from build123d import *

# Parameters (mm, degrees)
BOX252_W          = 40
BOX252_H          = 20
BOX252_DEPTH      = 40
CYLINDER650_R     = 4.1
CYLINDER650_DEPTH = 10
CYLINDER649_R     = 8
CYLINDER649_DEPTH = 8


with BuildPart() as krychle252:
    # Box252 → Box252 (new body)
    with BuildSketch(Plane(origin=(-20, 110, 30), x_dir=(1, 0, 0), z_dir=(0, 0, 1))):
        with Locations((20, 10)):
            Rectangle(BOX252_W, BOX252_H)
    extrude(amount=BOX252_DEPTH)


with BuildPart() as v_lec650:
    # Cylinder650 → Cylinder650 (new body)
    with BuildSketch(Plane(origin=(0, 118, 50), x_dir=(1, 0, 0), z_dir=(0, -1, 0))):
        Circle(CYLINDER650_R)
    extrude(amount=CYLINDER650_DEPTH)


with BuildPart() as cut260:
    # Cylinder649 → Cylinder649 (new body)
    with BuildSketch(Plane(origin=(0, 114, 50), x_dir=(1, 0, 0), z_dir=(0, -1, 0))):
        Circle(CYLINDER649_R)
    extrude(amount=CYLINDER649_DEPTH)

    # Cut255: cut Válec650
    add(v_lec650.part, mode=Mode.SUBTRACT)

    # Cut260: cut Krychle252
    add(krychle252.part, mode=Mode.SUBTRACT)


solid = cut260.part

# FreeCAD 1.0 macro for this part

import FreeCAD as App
import Part
import Sketcher


def add_polygon(sketch, points):
    """Adds a closed chain of lines whose ends are joined by coincident constraints."""
    first, n = sketch.GeometryCount, len(points)
    for a, b in zip(points, points[1:] + points[:1]):
        sketch.addGeometry(Part.LineSegment(App.Vector(*a, 0), App.Vector(*b, 0)), False)
    for i in range(n):
        sketch.addConstraint(Sketcher.Constraint("Coincident", first + i, 2, first + (i + 1) % n, 1))

doc = App.newDocument("Part")
body = doc.addObject("PartDesign::Body", "Body")

sketch1 = doc.addObject("Sketcher::SketchObject", "Sketch")
body.addObject(sketch1)
sketch1.AttachmentSupport = (doc.XY_Plane, [""])
sketch1.MapMode = "FlatFace"
sketch1.AttachmentOffset = App.Placement(App.Vector(0, 0, 30), App.Rotation())
add_polygon(sketch1, [(-20, 130), (-20, 110), (20, 110), (20, 130)])
sketch1.addConstraint([
    Sketcher.Constraint("Vertical", 0),
    Sketcher.Constraint("Horizontal", 1),
    Sketcher.Constraint("Vertical", 2),
    Sketcher.Constraint("Horizontal", 3),
    Sketcher.Constraint("DistanceX", 1, 1, 1, 2, 40.0),
    Sketcher.Constraint("DistanceY", 0, 2, 0, 1, 20.0),
    Sketcher.Constraint("DistanceX", 0, 2, -1, 1, 20.0),
    Sketcher.Constraint("DistanceY", -1, 1, 0, 2, 110.0),
])
pad1 = doc.addObject("PartDesign::Pad", "Pad")
body.addObject(pad1)
pad1.Profile = sketch1
pad1.Length = 40
body2 = doc.addObject("PartDesign::Body", "Body001")

sketch2 = doc.addObject("Sketcher::SketchObject", "Sketch001")
body2.addObject(sketch2)
sketch2.AttachmentSupport = (doc.getObject("XZ_Plane001"), [""])
sketch2.MapMode = "FlatFace"
sketch2.AttachmentOffset = App.Placement(App.Vector(0, 0, -118), App.Rotation())
sketch2.addGeometry(Part.Circle(App.Vector(0, 50, 0), App.Vector(0, 0, 1), 4.1), False)
sketch2.addConstraint([
    Sketcher.Constraint("PointOnObject", 0, 3, -2),
    Sketcher.Constraint("Diameter", 0, 8.2),
    Sketcher.Constraint("DistanceY", -1, 1, 0, 3, 50.0),
])
pad2 = doc.addObject("PartDesign::Pad", "Pad001")
body2.addObject(pad2)
pad2.Profile = sketch2
pad2.Length = 10
body3 = doc.addObject("PartDesign::Body", "Body002")

sketch3 = doc.addObject("Sketcher::SketchObject", "Sketch002")
body3.addObject(sketch3)
sketch3.AttachmentSupport = (doc.getObject("XZ_Plane002"), [""])
sketch3.MapMode = "FlatFace"
sketch3.AttachmentOffset = App.Placement(App.Vector(0, 0, -114), App.Rotation())
sketch3.addGeometry(Part.Circle(App.Vector(0, 50, 0), App.Vector(0, 0, 1), 8), False)
sketch3.addConstraint([
    Sketcher.Constraint("PointOnObject", 0, 3, -2),
    Sketcher.Constraint("Diameter", 0, 16.0),
    Sketcher.Constraint("DistanceY", -1, 1, 0, 3, 50.0),
])
pad3 = doc.addObject("PartDesign::Pad", "Pad002")
body3.addObject(pad3)
pad3.Profile = sketch3
pad3.Length = 8
doc.recompute()

boolean = doc.addObject("PartDesign::Boolean", "Boolean")
body3.addObject(boolean)
boolean.Type = "Cut"
boolean.addObjects([body2])
doc.recompute()

boolean2 = doc.addObject("PartDesign::Boolean", "Boolean001")
body3.addObject(boolean2)
boolean2.Type = "Cut"
boolean2.addObjects([body])

doc.recompute()
